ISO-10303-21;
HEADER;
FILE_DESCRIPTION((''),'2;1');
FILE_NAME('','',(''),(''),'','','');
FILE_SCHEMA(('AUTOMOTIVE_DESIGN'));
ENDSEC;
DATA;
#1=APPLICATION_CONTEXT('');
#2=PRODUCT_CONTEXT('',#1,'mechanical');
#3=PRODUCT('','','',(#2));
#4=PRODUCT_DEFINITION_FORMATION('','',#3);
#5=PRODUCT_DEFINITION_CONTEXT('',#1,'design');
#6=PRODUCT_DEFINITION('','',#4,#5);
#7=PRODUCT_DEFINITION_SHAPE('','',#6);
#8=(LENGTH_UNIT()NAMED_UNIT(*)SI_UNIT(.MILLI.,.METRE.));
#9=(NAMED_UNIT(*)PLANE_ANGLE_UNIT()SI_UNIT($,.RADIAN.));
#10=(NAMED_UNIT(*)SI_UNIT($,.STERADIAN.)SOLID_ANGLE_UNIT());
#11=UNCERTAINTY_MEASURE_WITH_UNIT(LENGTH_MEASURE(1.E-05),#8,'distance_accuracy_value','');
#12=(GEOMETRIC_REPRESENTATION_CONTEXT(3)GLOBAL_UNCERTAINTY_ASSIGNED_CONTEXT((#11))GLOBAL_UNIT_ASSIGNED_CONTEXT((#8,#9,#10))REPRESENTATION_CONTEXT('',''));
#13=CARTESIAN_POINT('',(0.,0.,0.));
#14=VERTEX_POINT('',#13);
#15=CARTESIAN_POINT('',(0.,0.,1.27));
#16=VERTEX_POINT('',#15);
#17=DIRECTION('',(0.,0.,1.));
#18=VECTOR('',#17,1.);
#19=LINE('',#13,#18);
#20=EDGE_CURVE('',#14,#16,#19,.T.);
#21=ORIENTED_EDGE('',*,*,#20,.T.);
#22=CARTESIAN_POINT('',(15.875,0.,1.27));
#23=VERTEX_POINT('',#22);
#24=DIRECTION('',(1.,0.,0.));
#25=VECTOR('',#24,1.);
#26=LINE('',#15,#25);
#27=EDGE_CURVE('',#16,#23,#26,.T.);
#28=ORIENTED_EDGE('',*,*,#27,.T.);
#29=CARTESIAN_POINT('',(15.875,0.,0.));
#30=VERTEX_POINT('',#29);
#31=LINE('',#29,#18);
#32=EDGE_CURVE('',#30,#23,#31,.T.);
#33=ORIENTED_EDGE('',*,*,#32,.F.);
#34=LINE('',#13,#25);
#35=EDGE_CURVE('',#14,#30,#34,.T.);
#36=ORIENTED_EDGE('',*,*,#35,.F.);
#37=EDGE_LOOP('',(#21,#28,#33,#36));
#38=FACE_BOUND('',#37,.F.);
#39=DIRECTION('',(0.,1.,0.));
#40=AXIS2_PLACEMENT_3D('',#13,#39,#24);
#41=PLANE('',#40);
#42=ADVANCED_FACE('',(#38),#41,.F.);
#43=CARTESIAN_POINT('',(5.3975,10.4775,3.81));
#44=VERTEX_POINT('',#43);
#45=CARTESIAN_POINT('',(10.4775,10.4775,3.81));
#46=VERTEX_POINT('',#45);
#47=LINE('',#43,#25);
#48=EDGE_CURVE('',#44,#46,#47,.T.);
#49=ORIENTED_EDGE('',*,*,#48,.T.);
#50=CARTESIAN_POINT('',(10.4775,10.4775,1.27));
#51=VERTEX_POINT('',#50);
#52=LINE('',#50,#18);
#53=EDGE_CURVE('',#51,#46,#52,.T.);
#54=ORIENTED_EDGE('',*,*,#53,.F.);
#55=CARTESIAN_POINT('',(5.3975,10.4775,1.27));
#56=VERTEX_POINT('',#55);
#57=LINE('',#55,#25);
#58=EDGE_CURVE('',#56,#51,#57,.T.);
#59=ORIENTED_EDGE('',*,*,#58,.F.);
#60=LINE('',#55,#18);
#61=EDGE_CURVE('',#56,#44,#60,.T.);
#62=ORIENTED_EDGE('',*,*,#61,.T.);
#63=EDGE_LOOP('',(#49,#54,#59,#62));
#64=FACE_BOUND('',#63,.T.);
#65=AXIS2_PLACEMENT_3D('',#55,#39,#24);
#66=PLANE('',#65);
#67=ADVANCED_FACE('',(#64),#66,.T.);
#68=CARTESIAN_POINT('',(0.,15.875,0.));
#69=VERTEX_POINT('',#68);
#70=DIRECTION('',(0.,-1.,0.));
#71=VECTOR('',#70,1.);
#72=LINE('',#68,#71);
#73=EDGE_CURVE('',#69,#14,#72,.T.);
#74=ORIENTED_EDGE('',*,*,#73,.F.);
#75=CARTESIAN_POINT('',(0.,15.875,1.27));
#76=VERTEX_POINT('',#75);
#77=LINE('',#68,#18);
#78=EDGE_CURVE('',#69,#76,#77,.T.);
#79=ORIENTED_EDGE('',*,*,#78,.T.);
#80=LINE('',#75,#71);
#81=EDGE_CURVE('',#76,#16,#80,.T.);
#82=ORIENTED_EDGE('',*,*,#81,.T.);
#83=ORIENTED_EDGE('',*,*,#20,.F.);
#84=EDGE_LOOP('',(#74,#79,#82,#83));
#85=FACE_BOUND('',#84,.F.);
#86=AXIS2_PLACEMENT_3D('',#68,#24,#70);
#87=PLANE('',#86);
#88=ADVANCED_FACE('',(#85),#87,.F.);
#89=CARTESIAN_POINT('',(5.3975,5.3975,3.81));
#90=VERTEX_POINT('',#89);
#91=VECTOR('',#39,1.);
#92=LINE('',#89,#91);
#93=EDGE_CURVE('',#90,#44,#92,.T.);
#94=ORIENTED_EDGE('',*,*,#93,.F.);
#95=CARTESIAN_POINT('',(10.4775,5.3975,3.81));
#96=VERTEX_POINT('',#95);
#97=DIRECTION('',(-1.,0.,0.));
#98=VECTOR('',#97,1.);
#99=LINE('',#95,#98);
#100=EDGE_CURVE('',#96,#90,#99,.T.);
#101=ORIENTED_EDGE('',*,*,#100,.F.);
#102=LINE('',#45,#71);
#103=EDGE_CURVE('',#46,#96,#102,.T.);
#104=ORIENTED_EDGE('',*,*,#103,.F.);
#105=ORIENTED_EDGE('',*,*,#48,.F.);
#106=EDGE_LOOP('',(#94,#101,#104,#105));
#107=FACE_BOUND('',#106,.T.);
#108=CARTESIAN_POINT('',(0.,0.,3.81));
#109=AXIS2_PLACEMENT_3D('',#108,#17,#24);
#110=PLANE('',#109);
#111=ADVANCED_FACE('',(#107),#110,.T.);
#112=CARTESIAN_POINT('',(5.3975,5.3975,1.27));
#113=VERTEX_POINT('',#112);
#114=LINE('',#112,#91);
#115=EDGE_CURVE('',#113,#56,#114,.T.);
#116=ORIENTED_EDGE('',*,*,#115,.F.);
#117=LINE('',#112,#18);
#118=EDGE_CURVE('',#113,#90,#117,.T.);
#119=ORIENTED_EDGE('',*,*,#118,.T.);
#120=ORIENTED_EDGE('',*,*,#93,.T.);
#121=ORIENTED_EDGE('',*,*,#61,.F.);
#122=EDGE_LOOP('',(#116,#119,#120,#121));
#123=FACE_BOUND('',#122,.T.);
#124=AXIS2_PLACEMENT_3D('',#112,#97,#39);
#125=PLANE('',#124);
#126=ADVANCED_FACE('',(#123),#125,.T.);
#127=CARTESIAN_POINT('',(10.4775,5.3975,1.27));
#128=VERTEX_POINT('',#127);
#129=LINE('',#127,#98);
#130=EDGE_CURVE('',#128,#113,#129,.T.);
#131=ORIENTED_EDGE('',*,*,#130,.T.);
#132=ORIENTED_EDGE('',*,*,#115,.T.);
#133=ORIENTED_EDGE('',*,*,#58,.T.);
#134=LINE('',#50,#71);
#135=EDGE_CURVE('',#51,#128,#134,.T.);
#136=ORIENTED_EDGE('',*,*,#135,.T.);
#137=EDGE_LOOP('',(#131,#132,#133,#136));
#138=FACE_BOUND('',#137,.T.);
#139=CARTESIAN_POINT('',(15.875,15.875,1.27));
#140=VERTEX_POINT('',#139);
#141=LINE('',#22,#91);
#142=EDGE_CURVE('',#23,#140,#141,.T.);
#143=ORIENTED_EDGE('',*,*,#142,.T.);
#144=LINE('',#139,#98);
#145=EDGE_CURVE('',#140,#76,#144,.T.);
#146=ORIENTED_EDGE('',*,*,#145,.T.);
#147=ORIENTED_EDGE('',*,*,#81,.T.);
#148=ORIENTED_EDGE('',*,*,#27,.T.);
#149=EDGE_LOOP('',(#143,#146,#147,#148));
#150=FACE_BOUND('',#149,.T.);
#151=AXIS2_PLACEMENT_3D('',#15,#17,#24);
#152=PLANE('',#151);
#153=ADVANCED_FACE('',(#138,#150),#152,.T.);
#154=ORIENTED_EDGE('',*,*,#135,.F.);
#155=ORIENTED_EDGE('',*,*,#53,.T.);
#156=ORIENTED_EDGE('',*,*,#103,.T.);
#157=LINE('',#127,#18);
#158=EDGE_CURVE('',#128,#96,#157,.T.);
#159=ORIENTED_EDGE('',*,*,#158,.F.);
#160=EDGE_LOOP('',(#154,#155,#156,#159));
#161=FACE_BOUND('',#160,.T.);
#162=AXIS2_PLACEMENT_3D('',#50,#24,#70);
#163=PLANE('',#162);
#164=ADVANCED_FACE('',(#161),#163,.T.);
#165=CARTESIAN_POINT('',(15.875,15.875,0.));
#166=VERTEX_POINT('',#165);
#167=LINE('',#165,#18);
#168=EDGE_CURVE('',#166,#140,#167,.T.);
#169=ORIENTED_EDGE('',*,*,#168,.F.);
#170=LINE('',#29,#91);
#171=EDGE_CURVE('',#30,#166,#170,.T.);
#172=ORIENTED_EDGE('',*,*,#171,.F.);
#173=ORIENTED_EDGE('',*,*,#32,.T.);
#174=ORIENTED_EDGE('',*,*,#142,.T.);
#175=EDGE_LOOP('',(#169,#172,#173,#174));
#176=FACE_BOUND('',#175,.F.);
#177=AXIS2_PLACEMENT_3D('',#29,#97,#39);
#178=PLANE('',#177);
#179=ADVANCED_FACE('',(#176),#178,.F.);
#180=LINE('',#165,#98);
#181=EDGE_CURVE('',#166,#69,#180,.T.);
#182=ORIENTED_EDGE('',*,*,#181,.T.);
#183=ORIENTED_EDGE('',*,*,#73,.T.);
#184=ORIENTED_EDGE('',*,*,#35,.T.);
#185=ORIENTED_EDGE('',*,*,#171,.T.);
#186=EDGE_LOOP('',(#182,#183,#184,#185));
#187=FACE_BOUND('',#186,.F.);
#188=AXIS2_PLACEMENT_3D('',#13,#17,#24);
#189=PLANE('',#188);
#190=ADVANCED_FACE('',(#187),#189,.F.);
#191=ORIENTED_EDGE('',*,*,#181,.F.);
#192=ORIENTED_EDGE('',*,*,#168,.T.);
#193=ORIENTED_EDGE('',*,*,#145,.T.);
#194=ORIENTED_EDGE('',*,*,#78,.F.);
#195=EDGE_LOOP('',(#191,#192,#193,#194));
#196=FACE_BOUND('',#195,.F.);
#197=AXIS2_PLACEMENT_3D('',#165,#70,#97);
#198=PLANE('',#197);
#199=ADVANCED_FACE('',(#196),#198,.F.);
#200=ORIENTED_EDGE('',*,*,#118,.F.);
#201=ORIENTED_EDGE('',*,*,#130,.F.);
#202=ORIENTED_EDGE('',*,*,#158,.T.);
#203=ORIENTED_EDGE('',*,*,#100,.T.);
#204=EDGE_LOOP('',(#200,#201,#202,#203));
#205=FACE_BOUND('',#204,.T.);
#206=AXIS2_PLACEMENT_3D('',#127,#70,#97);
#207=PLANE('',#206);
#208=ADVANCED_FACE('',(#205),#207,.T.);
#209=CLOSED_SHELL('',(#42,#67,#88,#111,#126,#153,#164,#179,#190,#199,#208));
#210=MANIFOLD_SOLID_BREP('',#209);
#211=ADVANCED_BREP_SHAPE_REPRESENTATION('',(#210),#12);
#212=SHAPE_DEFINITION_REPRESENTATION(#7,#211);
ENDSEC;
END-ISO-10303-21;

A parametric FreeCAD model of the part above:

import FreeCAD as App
import Part
import Sketcher
Q = App.Units.Quantity


def add_polygon(sketch, points):
    """Adds a closed chain of lines whose ends are joined by coincident constraints."""
    first, n = sketch.GeometryCount, len(points)
    for a, b in zip(points, points[1:] + points[:1]):
        sketch.addGeometry(Part.LineSegment(App.Vector(*a, 0), App.Vector(*b, 0)), False)
    for i in range(n):
        sketch.addConstraint(Sketcher.Constraint("Coincident", first + i, 2, first + (i + 1) % n, 1))

doc = App.newDocument("Part")
body = doc.addObject("PartDesign::Body", "Body")

# Sketch on XY plane
sketch1 = doc.addObject("Sketcher::SketchObject", "Sketch")
body.addObject(sketch1)
sketch1.AttachmentSupport = (doc.XY_Plane, [""])
sketch1.MapMode = "FlatFace"
add_polygon(sketch1, [(0, 15.875), (0, 0), (15.875, 0), (15.875, 15.875)])  # lines 0-3
sketch1.addConstraint(Sketcher.Constraint("Vertical", 0))
sketch1.addConstraint(Sketcher.Constraint("Horizontal", 1))
sketch1.addConstraint(Sketcher.Constraint("Vertical", 2))
sketch1.addConstraint(Sketcher.Constraint("Horizontal", 3))
sketch1.addConstraint(Sketcher.Constraint("Coincident", 0, 2, -1, 1))
sketch1.addConstraint(Sketcher.Constraint("Equal", 3, 0))
sketch1.addConstraint(Sketcher.Constraint("DistanceX", 1, 1, 1, 2, Q("0.625 in")))
pad1 = doc.addObject("PartDesign::Pad", "Pad")
body.addObject(pad1)
pad1.Profile = sketch1
pad1.Length = Q("0.05 in")

# Sketch on XY plane
sketch2 = doc.addObject("Sketcher::SketchObject", "Sketch001")
body.addObject(sketch2)
sketch2.AttachmentSupport = (doc.XY_Plane, [""])
sketch2.MapMode = "FlatFace"
sketch2.AttachmentOffset = App.Placement(App.Vector(0, 0, 0.05 * 25.4), App.Rotation())
add_polygon(sketch2, [(10.4775, 10.4775), (5.3975, 10.4775), (5.3975, 5.3975), (10.4775, 5.3975)])  # lines 0-3
sketch2.addConstraint(Sketcher.Constraint("Horizontal", 0))
sketch2.addConstraint(Sketcher.Constraint("Vertical", 1))
sketch2.addConstraint(Sketcher.Constraint("Horizontal", 2))
sketch2.addConstraint(Sketcher.Constraint("Vertical", 3))
sketch2.addConstraint(Sketcher.Constraint("Equal", 2, 1))
sketch2.addConstraint(Sketcher.Constraint("DistanceX", 0, 2, 0, 1, Q("0.2 in")))
sketch2.addConstraint(Sketcher.Constraint("DistanceX", -1, 1, 0, 2, Q("0.2125 in")))
sketch2.addConstraint(Sketcher.Constraint("DistanceY", -1, 1, 0, 2, Q("0.4125 in")))
pad2 = doc.addObject("PartDesign::Pad", "Pad001")
body.addObject(pad2)
pad2.Profile = sketch2
pad2.Length = Q("0.1 in")

doc.recompute()
